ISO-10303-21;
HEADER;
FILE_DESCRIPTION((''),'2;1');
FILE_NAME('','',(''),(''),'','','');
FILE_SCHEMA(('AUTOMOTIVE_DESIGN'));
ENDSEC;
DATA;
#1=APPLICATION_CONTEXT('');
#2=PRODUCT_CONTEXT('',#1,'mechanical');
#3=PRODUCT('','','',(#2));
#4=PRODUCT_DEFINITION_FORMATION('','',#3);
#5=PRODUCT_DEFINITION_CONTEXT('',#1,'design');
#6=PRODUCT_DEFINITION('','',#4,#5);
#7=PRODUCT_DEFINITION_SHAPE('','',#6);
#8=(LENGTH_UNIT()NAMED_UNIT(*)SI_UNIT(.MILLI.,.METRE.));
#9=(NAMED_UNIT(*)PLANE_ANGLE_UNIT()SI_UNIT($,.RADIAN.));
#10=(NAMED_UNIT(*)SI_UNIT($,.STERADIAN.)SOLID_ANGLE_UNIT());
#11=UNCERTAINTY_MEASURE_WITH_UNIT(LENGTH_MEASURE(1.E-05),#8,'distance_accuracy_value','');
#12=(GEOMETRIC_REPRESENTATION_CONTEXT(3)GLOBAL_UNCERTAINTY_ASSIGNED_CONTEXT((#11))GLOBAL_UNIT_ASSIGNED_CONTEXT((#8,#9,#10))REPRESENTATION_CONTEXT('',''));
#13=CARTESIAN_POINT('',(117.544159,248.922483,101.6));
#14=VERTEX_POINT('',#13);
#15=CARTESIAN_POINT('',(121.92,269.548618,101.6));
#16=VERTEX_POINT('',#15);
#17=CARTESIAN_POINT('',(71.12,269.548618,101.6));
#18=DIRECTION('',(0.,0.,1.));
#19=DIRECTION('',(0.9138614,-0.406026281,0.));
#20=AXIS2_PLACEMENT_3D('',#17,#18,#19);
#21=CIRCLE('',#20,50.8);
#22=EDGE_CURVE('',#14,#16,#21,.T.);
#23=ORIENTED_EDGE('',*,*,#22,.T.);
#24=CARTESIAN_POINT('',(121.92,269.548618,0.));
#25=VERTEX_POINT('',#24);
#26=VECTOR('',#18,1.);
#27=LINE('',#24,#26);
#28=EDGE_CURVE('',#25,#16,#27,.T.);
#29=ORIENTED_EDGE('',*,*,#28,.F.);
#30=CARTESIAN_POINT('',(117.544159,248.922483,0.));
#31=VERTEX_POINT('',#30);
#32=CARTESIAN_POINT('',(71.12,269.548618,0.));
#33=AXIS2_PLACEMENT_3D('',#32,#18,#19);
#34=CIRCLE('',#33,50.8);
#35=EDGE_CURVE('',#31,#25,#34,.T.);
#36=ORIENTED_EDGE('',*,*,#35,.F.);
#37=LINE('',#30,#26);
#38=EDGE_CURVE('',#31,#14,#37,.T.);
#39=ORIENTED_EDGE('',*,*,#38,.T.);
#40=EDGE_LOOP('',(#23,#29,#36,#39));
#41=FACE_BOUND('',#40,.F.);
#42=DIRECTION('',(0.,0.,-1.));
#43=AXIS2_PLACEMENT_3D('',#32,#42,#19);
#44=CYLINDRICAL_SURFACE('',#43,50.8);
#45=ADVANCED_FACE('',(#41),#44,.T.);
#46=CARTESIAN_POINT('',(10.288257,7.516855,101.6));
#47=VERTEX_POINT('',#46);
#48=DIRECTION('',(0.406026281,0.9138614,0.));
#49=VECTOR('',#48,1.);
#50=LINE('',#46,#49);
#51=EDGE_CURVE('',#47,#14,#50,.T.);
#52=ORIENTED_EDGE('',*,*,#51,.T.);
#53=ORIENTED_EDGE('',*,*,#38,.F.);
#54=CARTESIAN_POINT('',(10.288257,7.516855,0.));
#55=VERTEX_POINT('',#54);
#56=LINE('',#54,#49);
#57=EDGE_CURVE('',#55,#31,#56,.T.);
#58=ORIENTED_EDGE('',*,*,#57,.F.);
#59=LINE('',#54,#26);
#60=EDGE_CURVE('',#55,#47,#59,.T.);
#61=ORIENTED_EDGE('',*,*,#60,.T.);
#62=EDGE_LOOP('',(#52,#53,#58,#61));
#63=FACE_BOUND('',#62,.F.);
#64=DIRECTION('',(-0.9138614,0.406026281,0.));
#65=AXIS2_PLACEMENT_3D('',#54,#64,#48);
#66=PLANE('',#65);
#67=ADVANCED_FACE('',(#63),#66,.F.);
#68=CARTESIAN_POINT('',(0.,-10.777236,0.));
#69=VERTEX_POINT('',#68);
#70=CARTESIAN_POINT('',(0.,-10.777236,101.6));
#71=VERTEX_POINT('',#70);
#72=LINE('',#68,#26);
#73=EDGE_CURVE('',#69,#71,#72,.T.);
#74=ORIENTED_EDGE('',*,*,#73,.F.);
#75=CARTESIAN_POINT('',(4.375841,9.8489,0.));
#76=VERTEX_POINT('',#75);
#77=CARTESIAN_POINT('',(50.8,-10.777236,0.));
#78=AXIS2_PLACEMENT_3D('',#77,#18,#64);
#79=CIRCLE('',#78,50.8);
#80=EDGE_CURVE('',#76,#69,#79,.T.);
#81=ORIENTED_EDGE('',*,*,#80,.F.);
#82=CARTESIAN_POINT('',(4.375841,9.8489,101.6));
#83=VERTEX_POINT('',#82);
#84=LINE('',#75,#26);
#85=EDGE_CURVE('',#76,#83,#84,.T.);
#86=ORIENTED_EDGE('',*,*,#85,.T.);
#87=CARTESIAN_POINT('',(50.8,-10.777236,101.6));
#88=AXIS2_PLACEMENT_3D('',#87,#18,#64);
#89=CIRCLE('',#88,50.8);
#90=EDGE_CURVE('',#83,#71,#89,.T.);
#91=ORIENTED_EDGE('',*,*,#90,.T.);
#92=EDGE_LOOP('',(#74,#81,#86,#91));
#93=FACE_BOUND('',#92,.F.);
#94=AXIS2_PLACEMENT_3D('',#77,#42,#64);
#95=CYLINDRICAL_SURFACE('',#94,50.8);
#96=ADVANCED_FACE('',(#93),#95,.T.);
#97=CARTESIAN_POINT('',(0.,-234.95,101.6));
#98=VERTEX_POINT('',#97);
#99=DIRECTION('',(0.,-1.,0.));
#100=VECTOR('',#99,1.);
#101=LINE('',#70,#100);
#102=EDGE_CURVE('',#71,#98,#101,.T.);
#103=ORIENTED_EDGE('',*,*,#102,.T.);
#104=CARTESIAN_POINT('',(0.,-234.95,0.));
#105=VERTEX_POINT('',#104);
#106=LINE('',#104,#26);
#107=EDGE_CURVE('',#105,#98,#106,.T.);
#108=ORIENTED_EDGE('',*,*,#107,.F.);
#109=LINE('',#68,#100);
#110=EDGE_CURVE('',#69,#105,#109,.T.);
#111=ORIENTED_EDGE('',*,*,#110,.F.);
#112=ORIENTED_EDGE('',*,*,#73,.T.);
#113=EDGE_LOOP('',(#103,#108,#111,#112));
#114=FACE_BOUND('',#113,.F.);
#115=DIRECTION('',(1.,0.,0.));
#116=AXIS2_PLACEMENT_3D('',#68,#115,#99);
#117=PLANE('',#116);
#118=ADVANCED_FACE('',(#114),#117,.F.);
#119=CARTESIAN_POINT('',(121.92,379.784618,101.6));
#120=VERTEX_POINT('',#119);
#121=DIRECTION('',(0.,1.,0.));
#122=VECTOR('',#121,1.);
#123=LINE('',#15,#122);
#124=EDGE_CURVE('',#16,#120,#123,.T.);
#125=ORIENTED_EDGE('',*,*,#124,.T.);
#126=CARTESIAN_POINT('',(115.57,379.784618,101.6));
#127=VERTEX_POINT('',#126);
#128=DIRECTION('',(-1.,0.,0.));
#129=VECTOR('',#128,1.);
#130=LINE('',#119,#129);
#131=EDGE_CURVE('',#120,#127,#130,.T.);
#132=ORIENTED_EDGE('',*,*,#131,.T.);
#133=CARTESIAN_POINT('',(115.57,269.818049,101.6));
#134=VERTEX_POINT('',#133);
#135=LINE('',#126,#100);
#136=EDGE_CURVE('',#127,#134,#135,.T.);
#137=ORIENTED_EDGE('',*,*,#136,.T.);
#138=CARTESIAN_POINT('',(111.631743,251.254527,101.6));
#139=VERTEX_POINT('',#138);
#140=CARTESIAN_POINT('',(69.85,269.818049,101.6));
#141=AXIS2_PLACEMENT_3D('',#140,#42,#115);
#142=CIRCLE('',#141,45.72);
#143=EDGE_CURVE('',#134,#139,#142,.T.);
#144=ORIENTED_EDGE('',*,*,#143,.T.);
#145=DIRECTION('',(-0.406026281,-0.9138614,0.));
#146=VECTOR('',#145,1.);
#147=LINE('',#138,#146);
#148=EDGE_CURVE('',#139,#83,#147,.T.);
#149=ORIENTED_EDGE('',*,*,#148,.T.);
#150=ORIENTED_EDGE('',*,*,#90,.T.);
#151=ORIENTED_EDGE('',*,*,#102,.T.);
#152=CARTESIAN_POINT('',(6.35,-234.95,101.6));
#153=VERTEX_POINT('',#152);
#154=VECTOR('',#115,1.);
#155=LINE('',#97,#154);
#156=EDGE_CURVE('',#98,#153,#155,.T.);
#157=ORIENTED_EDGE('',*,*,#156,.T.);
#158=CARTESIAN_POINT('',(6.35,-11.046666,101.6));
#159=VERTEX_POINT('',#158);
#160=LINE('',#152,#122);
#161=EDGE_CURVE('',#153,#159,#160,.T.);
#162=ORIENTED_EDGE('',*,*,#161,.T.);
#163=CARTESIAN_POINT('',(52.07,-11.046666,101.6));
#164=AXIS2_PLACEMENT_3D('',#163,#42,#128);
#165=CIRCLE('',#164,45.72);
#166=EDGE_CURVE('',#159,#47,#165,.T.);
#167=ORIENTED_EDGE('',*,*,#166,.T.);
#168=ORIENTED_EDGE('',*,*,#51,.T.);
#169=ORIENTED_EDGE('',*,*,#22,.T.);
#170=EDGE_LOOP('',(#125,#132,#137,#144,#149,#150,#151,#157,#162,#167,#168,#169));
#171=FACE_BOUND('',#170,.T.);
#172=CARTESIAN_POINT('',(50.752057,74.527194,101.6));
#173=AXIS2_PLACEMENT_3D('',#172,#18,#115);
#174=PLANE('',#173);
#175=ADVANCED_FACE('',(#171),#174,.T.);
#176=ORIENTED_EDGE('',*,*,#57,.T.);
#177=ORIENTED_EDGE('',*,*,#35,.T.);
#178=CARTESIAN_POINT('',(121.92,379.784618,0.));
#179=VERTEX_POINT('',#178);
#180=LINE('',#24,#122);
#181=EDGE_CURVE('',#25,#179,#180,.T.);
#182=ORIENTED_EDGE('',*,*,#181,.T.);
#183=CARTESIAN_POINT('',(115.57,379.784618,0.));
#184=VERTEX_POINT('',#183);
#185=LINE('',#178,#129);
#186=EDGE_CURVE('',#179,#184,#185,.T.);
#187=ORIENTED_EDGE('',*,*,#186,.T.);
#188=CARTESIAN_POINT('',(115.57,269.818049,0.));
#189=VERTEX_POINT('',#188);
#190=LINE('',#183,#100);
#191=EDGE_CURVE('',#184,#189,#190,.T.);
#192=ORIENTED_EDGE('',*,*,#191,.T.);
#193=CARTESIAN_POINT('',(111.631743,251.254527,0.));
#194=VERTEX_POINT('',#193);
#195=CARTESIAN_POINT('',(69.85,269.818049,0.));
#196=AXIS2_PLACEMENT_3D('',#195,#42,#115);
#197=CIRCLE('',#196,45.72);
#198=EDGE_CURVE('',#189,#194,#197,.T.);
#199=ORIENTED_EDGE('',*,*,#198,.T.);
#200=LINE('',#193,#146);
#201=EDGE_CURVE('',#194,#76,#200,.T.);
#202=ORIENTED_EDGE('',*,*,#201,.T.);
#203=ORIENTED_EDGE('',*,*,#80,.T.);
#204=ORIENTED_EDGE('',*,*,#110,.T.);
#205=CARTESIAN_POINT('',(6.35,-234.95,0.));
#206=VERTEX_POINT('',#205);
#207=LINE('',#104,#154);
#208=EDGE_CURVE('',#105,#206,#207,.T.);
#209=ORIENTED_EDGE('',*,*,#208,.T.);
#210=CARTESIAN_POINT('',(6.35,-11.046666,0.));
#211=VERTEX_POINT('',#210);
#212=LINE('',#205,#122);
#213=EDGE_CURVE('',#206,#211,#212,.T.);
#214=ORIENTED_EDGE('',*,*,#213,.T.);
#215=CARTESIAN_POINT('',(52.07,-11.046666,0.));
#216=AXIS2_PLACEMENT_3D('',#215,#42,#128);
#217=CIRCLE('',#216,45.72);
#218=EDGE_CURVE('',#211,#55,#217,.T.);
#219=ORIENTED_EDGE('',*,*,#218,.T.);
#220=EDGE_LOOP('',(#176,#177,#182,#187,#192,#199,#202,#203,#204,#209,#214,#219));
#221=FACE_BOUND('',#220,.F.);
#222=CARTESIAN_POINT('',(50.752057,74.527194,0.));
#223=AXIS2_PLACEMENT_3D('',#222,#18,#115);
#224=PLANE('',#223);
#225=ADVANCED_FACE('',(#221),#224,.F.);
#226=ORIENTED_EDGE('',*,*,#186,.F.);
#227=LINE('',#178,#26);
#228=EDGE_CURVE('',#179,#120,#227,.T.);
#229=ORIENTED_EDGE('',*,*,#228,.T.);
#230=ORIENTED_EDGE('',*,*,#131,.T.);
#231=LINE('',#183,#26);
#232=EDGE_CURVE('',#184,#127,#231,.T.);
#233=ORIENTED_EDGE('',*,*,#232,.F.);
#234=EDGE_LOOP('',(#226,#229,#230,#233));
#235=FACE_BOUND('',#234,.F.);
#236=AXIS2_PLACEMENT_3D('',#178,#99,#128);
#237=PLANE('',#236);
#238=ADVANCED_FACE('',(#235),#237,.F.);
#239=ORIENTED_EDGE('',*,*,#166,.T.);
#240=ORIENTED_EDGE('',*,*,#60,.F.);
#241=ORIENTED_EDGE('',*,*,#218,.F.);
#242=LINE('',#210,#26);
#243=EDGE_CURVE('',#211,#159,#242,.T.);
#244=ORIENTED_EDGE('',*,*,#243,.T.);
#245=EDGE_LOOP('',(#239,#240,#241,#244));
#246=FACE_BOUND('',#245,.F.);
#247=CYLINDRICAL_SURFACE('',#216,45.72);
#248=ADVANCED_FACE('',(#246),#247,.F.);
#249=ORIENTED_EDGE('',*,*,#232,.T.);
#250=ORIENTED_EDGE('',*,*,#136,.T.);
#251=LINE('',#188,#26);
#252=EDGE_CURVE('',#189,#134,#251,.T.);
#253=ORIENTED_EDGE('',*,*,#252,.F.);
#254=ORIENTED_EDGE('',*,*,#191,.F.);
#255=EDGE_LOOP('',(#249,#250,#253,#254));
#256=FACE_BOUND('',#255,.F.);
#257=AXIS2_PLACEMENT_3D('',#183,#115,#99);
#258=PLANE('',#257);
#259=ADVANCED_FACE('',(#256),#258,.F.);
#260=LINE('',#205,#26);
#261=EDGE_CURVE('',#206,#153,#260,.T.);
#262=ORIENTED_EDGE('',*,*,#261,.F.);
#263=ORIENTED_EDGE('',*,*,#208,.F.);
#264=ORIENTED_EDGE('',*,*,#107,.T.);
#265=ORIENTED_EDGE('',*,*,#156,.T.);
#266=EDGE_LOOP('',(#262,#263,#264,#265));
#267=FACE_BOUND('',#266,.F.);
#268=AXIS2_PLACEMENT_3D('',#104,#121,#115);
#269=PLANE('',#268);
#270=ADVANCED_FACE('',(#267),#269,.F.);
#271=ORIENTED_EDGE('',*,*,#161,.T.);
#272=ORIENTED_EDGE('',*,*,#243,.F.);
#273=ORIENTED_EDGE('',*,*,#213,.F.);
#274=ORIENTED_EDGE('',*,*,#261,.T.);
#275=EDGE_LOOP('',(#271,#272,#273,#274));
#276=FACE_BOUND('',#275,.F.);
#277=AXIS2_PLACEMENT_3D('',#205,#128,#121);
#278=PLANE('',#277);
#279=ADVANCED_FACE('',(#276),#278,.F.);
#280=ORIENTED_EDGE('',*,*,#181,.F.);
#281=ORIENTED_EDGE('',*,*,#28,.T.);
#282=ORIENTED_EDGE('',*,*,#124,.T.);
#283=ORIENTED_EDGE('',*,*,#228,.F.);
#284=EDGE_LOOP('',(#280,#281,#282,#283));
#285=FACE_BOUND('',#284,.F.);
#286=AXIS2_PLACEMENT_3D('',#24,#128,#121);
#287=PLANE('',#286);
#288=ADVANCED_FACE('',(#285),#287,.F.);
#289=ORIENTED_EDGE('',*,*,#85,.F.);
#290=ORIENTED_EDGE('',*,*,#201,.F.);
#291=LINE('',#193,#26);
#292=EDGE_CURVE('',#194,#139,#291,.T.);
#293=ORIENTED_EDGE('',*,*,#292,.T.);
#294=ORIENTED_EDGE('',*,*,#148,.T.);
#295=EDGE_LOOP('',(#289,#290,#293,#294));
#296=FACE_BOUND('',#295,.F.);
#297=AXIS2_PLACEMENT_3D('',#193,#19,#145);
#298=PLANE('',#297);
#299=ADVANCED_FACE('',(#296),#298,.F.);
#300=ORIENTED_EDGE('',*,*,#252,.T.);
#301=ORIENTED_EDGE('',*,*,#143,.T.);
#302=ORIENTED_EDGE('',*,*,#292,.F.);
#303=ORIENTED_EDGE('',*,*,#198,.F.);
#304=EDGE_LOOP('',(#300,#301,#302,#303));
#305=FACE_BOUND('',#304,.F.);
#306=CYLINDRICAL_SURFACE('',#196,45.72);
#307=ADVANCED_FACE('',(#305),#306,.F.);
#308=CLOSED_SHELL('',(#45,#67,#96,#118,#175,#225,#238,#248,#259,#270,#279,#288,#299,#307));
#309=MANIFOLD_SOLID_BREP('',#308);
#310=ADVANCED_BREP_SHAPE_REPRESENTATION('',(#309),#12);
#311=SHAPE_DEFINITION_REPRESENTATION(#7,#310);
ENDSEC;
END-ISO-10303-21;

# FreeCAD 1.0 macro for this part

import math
import FreeCAD as App
import Part
import Sketcher
from FreeCAD import Vector
Q = App.Units.Quantity

doc = App.newDocument("Part")
body = doc.addObject("PartDesign::Body", "Body")

# Sketch on XY plane
sketch1 = doc.addObject("Sketcher::SketchObject", "Sketch")
body.addObject(sketch1)
sketch1.AttachmentSupport = (doc.XY_Plane, [""])
sketch1.MapMode = "FlatFace"
sketch1.addGeometry([
    Part.LineSegment(Vector(0, -10.777236, 0), Vector(0, -234.95, 0)),  # 0
    Part.LineSegment(Vector(0, -234.95, 0), Vector(6.35, -234.95, 0)),  # 1
    Part.LineSegment(Vector(6.35, -234.95, 0), Vector(6.35, -11.046666, 0)),  # 2
    Part.ArcOfCircle(Part.Circle(Vector(52.07, -11.046666, 0), Vector(0, 0, 1), 45.72), math.radians(156.044545), math.radians(180)),  # 3
    Part.LineSegment(Vector(10.288257, 7.516855, 0), Vector(117.544159, 248.922483, 0)),  # 4
    Part.ArcOfCircle(Part.Circle(Vector(71.12, 269.548618, 0), Vector(0, 0, 1), 50.8), math.radians(-23.955455), math.radians(0)),  # 5
    Part.LineSegment(Vector(121.92, 269.548618, 0), Vector(121.92, 379.784618, 0)),  # 6
    Part.LineSegment(Vector(121.92, 379.784618, 0), Vector(115.57, 379.784618, 0)),  # 7
    Part.LineSegment(Vector(115.57, 379.784618, 0), Vector(115.57, 269.818049, 0)),  # 8
    Part.ArcOfCircle(Part.Circle(Vector(69.85, 269.818049, 0), Vector(0, 0, 1), 45.72), math.radians(-23.955455), math.radians(0)),  # 9
    Part.LineSegment(Vector(111.631743, 251.254527, 0), Vector(4.375841, 9.8489, 0)),  # 10
    Part.ArcOfCircle(Part.Circle(Vector(50.8, -10.777236, 0), Vector(0, 0, 1), 50.8), math.radians(156.044545), math.radians(180)),  # 11
], False)
sketch1.addConstraint([
    Sketcher.Constraint("Coincident", 0, 2, 1, 1),
    Sketcher.Constraint("Coincident", 1, 2, 2, 1),
    Sketcher.Constraint("Tangent", 2, 2, 3, 2),
    Sketcher.Constraint("Tangent", 3, 1, 4, 1),
    Sketcher.Constraint("Tangent", 4, 2, 5, 1),
    Sketcher.Constraint("Tangent", 5, 2, 6, 1),
    Sketcher.Constraint("Coincident", 6, 2, 7, 1),
    Sketcher.Constraint("Coincident", 7, 2, 8, 1),
    Sketcher.Constraint("Tangent", 8, 2, 9, 2),
    Sketcher.Constraint("Tangent", 9, 1, 10, 1),
    Sketcher.Constraint("Tangent", 10, 2, 11, 1),
    Sketcher.Constraint("Tangent", 11, 2, 0, 1),
    Sketcher.Constraint("Vertical", 0),
    Sketcher.Constraint("Horizontal", 1),
    Sketcher.Constraint("Vertical", 2),
    Sketcher.Constraint("Vertical", 6),
    Sketcher.Constraint("Horizontal", 7),
    Sketcher.Constraint("Vertical", 8),
    Sketcher.Constraint("Equal", 3, 9),
    Sketcher.Constraint("Equal", 5, 11),
    Sketcher.Constraint("PointOnObject", 0, 2, -2),
    Sketcher.Constraint("Parallel", 4, 10),
    Sketcher.Constraint("Equal", 1, 7),
    Sketcher.Constraint("Radius", 5, Q("2 in")),
    Sketcher.Constraint("Radius", 3, Q("1.8 in")),
    Sketcher.Constraint("Distance", 4, Q("10.4 in")),
    Sketcher.Constraint("DistanceX", 1, 1, 1, 2, Q("0.25 in")),
    Sketcher.Constraint("DistanceY", 6, 1, 6, 2, Q("4.34 in")),
    Sketcher.Constraint("DistanceX", -1, 1, 5, 3, Q("2.8 in")),
    Sketcher.Constraint("DistanceY", 0, 2, -1, 1, Q("9.25 in")),
    Sketcher.Constraint("DistanceY", 8, 2, 8, 1, Q("109.966569 mm")),
    Sketcher.Constraint("DistanceY", -1, 1, 10, 2, Q("9.8489 mm")),
])
pad1 = doc.addObject("PartDesign::Pad", "Pad")
body.addObject(pad1)
pad1.Profile = sketch1
pad1.Length = Q("4 in")

doc.recompute()
